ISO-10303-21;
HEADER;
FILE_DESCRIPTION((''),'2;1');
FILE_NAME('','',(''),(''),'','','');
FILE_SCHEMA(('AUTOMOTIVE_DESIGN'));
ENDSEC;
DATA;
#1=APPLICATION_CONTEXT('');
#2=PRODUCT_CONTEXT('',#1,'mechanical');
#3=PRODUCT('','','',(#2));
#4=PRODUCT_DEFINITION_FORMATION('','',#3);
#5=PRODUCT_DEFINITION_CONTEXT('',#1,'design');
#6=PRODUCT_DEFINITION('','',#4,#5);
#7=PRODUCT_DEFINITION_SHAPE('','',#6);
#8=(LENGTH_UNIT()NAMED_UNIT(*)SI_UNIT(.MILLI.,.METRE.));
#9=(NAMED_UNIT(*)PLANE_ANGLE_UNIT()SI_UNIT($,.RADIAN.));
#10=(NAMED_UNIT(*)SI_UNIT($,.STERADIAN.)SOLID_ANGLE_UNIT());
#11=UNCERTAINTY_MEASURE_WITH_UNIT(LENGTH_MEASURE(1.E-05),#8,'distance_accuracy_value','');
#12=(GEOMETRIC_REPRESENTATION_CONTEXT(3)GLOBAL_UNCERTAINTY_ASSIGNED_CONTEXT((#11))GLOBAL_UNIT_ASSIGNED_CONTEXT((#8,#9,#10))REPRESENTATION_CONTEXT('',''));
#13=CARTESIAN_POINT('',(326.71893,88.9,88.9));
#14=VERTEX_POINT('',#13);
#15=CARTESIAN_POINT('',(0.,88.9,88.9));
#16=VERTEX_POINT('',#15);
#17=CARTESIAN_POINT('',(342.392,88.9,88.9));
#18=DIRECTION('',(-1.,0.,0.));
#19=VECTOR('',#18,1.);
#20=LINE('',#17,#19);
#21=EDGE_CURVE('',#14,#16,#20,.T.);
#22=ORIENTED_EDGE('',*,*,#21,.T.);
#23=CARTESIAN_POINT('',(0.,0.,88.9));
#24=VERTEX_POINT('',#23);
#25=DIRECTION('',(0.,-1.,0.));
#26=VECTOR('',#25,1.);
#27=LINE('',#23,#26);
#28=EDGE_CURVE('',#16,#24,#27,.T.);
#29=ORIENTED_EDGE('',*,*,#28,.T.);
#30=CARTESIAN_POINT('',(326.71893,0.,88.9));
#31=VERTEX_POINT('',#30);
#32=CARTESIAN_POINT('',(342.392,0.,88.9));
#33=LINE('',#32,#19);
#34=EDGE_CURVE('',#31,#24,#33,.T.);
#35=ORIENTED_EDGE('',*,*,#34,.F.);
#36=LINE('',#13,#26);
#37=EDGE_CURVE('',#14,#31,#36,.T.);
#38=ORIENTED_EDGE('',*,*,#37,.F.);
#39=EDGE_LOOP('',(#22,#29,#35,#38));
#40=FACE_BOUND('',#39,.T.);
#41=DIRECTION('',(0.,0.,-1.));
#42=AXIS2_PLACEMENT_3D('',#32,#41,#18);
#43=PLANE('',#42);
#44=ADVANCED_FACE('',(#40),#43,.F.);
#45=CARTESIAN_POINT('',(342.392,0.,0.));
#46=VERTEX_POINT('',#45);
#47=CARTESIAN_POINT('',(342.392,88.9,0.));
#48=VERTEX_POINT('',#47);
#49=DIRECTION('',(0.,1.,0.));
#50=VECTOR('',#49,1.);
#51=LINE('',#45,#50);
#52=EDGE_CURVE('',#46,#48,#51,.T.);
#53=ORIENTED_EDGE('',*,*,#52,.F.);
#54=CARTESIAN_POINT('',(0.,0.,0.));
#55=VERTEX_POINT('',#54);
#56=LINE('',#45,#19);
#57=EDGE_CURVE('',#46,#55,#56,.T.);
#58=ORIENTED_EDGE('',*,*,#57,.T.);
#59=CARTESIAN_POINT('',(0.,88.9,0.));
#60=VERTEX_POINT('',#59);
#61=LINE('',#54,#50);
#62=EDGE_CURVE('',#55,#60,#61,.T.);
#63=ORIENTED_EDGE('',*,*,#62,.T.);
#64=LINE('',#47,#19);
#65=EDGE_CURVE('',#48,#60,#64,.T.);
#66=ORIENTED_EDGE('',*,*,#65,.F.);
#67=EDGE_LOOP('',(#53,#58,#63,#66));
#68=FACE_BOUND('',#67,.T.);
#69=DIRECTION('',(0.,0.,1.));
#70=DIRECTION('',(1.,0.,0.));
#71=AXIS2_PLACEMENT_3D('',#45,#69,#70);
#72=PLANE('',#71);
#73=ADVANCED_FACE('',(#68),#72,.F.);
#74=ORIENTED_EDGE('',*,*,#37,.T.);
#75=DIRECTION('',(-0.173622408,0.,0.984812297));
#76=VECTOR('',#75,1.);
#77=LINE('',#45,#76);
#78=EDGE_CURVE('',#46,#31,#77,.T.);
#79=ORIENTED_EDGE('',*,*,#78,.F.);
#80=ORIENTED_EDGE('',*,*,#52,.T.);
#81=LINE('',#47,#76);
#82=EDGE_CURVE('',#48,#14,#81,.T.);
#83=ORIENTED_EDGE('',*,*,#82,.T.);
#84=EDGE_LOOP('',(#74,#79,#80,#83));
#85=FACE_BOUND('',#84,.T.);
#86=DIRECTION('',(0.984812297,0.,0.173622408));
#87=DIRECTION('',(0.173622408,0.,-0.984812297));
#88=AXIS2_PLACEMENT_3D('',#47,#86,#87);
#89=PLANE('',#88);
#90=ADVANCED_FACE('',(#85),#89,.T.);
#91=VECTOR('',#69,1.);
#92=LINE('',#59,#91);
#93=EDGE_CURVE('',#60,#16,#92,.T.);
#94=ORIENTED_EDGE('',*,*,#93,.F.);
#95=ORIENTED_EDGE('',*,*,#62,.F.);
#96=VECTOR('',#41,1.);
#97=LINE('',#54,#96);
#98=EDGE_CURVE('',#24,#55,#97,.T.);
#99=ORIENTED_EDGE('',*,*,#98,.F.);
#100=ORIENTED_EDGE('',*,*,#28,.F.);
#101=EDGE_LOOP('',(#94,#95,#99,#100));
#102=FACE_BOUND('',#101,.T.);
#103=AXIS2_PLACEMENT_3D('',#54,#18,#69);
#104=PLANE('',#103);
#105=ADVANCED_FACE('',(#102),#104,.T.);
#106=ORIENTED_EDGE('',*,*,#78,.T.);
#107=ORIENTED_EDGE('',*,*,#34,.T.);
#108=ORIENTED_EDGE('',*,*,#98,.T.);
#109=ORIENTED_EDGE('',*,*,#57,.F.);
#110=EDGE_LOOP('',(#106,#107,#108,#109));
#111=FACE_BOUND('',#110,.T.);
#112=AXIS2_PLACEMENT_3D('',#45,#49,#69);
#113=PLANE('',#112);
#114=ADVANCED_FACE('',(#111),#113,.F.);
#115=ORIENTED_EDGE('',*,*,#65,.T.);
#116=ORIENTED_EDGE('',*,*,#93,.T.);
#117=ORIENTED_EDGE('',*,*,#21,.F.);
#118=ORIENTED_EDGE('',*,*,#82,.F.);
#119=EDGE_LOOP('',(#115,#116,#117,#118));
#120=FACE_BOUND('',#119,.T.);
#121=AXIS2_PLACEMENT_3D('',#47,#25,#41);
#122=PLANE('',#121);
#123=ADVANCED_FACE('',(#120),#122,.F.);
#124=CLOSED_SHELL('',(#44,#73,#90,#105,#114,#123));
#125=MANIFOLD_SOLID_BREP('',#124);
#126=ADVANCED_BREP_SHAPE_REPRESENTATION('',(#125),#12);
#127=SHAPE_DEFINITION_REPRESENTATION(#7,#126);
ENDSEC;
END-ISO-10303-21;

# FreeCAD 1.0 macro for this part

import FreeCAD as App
import Part
import Sketcher
Q = App.Units.Quantity

doc = App.newDocument("Part")
body = doc.addObject("PartDesign::Body", "Body")

# Sketch on YZ plane
sketch1 = body.newObject("Sketcher::SketchObject", "Sketch")
sketch1.AttachmentSupport = (doc.getObject("YZ_Plane"), [""])
sketch1.MapMode = "FlatFace"
sketch1.addGeometry(Part.LineSegment(App.Vector(0, 88.9, 0), App.Vector(0, 0, 0)), False)
sketch1.addGeometry(Part.LineSegment(App.Vector(0, 0, 0), App.Vector(88.9, 0, 0)), False)
sketch1.addGeometry(Part.LineSegment(App.Vector(88.9, 0, 0), App.Vector(88.9, 88.9, 0)), False)
sketch1.addGeometry(Part.LineSegment(App.Vector(88.9, 88.9, 0), App.Vector(0, 88.9, 0)), False)
sketch1.addConstraint(Sketcher.Constraint("Coincident", 0, 2, 1, 1))
sketch1.addConstraint(Sketcher.Constraint("Coincident", 1, 2, 2, 1))
sketch1.addConstraint(Sketcher.Constraint("Coincident", 2, 2, 3, 1))
sketch1.addConstraint(Sketcher.Constraint("Coincident", 3, 2, 0, 1))
sketch1.addConstraint(Sketcher.Constraint("Vertical", 0))
sketch1.addConstraint(Sketcher.Constraint("Horizontal", 1))
sketch1.addConstraint(Sketcher.Constraint("Vertical", 2))
sketch1.addConstraint(Sketcher.Constraint("Horizontal", 3))
sketch1.addConstraint(Sketcher.Constraint("Coincident", 0, 2, -1, 1))
sketch1.addConstraint(Sketcher.Constraint("Equal", 3, 0))
sketch1.addConstraint(Sketcher.Constraint("DistanceX", 1, 1, 1, 2, Q("3.5 in")))
pad1 = body.newObject("PartDesign::Pad", "Pad")
pad1.Profile = sketch1
pad1.Length = Q("13.48 in")

# Sketch on XZ plane
sketch2 = body.newObject("Sketcher::SketchObject", "Sketch001")
sketch2.AttachmentSupport = (doc.getObject("XZ_Plane"), [""])
sketch2.MapMode = "FlatFace"
sketch2.addGeometry(Part.LineSegment(App.Vector(342.392, 0, 0), App.Vector(326.71893, 88.9, 0)), False)
sketch2.addGeometry(Part.LineSegment(App.Vector(326.71893, 88.9, 0), App.Vector(342.392, 88.9, 0)), False)
sketch2.addGeometry(Part.LineSegment(App.Vector(342.392, 88.9, 0), App.Vector(342.392, 0, 0)), False)
sketch2.addConstraint(Sketcher.Constraint("Coincident", 0, 2, 1, 1))
sketch2.addConstraint(Sketcher.Constraint("Coincident", 1, 2, 2, 1))
sketch2.addConstraint(Sketcher.Constraint("Coincident", 2, 2, 0, 1))
sketch2.addConstraint(Sketcher.Constraint("Horizontal", 1))
sketch2.addConstraint(Sketcher.Constraint("Vertical", 2))
sketch2.addConstraint(Sketcher.Constraint("PointOnObject", 2, 2, -1))
sketch2.addConstraint(Sketcher.Constraint("DistanceY", 2, 2, 2, 1, Q("3.5 in")))
sketch2.addConstraint(Sketcher.Constraint("DistanceX", -1, 1, 1, 2, Q("13.48 in")))
sketch2.addConstraint(Sketcher.Constraint("DistanceX", 1, 1, 1, 2, 15.67307))
pocket1 = body.newObject("PartDesign::Pocket", "Pocket")
pocket1.Profile = sketch2
pocket1.Length = Q("3.5 in")

doc.recompute()
